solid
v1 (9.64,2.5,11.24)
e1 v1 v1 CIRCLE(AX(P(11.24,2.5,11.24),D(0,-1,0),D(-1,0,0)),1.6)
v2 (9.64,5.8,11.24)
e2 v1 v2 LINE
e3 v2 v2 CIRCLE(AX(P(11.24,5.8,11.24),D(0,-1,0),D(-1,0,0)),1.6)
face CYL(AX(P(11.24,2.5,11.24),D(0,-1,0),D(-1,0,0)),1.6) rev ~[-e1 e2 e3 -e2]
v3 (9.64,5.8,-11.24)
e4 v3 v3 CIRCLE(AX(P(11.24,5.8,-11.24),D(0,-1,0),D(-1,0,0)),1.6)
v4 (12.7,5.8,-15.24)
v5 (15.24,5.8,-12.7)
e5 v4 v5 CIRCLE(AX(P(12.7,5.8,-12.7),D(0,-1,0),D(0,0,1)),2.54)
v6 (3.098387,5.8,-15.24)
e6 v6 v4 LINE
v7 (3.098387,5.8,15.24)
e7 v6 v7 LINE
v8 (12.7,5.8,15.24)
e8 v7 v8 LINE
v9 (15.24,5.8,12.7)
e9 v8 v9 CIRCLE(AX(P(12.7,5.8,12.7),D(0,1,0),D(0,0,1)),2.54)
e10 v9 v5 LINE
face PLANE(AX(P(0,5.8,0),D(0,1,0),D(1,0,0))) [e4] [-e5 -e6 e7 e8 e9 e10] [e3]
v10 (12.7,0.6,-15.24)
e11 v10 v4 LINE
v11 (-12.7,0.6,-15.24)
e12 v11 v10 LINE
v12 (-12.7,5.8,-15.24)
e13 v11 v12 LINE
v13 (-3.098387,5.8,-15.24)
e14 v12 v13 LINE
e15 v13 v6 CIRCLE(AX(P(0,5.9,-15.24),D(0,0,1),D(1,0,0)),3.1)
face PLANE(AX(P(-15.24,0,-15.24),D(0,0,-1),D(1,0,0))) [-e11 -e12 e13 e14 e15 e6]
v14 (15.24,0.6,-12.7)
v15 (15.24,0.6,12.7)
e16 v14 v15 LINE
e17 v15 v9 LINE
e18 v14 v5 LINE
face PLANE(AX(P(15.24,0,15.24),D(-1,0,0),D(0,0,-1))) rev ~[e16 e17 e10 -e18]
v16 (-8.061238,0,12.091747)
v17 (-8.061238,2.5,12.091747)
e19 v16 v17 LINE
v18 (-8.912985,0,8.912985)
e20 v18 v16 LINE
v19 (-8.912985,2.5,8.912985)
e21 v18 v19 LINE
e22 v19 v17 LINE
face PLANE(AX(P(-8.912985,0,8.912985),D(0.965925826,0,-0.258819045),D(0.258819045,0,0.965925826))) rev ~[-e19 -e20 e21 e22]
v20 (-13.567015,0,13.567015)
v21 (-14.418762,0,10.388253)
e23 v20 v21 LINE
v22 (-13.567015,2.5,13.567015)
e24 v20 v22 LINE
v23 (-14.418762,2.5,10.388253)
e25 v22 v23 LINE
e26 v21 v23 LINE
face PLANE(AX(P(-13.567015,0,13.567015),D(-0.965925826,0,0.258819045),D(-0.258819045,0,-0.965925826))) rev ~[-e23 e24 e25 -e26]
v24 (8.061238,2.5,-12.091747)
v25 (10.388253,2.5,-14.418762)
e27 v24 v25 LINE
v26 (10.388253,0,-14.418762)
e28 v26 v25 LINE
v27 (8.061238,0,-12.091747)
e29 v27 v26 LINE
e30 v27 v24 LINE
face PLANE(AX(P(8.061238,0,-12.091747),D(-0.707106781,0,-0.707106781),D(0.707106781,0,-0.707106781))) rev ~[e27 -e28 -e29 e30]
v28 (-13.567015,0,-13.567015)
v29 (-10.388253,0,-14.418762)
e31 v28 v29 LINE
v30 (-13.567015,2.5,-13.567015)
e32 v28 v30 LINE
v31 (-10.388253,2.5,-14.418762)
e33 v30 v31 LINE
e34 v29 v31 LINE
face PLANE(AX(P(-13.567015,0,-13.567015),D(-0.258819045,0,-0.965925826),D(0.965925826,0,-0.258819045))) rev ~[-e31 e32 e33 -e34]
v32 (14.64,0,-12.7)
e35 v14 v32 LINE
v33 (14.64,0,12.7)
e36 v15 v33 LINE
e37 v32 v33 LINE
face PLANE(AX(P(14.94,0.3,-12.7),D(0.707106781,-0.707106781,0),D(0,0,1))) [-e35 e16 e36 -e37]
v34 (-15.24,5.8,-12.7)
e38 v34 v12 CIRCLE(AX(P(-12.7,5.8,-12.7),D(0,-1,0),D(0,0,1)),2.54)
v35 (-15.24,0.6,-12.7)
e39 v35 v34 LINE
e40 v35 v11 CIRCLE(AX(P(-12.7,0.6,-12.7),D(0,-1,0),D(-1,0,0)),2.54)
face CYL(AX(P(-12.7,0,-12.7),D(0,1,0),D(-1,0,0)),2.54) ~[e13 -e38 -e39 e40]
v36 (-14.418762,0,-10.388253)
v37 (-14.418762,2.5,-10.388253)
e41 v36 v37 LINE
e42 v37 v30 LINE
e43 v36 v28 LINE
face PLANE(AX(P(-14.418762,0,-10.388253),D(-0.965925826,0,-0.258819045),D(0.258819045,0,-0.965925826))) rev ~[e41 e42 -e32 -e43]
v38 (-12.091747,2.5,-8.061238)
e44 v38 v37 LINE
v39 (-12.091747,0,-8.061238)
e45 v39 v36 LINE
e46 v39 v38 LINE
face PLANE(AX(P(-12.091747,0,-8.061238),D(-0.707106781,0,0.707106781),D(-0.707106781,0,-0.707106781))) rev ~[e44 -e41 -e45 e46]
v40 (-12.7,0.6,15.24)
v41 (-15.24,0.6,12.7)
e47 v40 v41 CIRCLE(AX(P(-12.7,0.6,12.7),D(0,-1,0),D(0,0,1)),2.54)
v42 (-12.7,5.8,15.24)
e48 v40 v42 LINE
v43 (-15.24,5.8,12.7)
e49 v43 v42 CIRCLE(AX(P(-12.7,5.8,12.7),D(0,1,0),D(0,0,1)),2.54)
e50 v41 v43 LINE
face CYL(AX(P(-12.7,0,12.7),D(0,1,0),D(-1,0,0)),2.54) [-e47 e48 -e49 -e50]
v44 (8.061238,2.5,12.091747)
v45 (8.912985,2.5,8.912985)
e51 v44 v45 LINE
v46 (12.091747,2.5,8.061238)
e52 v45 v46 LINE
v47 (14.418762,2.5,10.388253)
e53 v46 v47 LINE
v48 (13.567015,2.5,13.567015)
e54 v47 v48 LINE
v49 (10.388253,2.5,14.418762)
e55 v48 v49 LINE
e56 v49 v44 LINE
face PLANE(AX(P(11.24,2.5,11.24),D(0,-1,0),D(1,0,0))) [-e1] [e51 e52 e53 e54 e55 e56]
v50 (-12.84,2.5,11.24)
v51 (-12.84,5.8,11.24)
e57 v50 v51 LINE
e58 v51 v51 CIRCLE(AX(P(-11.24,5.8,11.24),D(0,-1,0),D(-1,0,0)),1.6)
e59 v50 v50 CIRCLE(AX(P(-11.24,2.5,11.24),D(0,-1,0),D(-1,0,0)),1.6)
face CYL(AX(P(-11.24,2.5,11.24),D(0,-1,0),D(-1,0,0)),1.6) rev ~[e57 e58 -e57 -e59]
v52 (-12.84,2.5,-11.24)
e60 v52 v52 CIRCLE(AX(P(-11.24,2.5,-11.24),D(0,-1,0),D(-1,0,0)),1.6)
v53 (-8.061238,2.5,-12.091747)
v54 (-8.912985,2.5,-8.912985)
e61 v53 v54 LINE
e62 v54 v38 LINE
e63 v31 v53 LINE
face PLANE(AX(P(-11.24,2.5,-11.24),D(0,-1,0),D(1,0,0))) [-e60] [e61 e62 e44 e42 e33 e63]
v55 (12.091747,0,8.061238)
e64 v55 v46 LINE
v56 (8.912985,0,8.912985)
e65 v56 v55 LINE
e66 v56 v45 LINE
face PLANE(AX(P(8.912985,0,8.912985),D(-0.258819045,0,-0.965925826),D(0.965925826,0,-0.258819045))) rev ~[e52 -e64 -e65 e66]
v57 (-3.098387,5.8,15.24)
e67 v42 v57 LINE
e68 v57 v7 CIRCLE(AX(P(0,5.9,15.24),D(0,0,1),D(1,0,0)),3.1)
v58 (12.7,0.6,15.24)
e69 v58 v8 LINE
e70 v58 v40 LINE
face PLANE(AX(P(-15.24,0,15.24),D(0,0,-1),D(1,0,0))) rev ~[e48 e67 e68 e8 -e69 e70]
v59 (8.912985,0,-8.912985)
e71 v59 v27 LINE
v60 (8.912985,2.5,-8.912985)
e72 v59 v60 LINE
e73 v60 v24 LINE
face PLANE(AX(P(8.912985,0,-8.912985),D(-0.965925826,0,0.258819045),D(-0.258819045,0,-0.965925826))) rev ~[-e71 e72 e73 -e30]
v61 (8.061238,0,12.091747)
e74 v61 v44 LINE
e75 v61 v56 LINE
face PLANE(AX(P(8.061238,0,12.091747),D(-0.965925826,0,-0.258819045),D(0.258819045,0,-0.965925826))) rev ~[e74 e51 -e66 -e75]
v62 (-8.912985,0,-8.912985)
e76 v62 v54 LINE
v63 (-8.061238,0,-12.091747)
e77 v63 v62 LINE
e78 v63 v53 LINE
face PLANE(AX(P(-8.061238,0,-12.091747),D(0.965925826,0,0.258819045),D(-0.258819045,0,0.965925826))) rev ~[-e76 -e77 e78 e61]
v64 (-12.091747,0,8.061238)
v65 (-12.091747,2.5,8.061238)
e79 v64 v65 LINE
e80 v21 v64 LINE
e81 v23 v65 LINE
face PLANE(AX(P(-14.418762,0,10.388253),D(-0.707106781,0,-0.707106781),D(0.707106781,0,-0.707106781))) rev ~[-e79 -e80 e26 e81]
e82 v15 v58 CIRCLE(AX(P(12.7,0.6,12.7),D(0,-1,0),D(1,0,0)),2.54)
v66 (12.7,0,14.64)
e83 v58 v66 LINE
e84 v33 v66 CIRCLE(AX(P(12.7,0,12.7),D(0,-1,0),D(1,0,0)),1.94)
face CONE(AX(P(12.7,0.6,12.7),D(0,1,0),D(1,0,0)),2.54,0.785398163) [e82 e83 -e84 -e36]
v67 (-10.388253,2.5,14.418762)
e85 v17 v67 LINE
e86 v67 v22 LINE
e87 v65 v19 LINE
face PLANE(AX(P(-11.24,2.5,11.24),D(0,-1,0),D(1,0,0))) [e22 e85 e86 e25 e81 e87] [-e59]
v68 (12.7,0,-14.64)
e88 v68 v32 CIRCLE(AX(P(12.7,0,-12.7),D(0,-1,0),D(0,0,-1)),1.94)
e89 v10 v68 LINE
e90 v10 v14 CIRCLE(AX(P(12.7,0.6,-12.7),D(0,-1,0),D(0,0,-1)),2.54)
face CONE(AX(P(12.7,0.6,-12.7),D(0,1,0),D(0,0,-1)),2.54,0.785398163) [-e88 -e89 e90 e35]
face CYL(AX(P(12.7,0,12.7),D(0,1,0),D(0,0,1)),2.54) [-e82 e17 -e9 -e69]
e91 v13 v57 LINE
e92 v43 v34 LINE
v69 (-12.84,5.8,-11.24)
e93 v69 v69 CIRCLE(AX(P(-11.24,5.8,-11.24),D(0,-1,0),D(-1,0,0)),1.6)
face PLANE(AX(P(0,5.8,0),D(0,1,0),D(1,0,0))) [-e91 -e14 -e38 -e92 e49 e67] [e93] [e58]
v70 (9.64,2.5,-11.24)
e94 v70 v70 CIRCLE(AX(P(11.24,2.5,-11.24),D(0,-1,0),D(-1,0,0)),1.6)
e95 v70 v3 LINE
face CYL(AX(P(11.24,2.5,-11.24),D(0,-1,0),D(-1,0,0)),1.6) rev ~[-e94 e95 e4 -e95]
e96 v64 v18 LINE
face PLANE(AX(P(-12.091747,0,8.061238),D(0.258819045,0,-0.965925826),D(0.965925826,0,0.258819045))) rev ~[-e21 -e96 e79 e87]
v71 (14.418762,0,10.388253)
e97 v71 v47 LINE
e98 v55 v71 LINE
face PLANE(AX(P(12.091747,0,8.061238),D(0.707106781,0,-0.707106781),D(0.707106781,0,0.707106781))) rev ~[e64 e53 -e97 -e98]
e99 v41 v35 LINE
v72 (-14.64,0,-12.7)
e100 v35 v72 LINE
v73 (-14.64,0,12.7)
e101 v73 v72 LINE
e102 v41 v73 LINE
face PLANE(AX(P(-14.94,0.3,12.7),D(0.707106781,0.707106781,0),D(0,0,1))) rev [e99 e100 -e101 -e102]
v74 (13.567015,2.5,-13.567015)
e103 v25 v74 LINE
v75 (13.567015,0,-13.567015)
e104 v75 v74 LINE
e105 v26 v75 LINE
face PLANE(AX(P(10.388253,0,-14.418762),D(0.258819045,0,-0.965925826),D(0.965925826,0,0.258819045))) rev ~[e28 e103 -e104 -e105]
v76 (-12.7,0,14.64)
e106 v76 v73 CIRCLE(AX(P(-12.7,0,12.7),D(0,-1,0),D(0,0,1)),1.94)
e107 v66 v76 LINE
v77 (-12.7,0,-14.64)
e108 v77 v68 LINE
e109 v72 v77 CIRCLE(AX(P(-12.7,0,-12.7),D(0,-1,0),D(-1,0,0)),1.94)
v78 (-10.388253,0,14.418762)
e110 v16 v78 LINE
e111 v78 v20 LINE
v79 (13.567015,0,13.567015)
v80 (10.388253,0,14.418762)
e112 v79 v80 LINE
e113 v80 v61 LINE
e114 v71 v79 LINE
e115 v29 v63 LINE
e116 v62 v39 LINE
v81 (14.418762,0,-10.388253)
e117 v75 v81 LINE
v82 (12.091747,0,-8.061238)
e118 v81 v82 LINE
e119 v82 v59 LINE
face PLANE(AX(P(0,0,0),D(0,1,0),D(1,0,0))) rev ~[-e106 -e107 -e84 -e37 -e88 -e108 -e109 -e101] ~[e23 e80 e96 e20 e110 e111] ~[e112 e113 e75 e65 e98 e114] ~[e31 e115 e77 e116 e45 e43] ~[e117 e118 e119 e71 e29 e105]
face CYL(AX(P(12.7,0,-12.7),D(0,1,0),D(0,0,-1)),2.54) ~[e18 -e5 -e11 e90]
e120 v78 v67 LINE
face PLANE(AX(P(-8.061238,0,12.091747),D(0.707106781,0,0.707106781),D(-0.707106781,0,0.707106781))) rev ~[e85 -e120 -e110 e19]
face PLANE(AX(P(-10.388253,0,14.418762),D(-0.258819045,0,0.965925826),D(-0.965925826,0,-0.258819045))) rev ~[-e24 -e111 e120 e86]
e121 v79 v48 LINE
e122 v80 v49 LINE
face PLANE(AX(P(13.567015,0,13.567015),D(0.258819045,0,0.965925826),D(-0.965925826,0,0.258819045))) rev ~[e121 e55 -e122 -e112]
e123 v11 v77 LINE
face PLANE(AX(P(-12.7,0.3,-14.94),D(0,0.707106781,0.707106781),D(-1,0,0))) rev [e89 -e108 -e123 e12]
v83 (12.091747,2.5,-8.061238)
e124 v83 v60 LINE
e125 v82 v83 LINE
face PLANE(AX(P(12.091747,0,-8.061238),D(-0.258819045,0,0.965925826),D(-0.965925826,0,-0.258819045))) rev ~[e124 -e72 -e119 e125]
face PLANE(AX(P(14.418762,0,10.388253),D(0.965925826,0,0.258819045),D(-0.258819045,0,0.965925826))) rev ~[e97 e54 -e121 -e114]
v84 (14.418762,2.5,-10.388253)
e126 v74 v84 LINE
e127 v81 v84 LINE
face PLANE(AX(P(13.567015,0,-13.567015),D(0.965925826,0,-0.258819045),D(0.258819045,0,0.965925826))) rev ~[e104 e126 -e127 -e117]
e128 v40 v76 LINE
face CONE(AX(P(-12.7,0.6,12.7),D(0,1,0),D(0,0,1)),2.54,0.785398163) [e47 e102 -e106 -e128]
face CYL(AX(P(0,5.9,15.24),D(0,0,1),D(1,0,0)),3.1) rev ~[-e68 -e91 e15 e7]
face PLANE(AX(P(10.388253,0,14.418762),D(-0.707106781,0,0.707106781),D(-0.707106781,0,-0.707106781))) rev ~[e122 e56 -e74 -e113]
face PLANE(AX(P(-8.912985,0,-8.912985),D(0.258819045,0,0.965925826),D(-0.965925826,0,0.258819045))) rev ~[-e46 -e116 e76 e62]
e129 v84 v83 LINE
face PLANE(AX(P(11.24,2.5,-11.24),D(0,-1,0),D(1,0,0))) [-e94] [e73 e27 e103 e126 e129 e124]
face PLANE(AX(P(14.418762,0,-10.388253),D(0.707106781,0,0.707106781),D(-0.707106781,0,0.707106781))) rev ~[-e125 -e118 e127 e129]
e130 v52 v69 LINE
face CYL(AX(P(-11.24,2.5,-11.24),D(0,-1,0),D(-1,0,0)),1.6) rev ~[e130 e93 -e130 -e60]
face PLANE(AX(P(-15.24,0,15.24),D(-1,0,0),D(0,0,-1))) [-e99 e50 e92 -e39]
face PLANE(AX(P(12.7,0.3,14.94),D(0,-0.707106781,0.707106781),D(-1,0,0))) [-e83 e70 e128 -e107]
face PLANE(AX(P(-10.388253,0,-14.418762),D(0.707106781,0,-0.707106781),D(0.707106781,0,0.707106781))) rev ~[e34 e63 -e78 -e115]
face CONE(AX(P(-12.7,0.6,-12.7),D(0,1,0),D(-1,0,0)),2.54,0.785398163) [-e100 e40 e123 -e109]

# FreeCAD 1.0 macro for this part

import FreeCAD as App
import Part
import Sketcher
from FreeCAD import Vector
Q = App.Units.Quantity


def edges_at(feature, points):
    """Names of the edges that pass closest to the given points."""
    edges = feature.Shape.Edges
    near = lambda p: min(range(len(edges)), key=lambda i: edges[i].distToShape(Part.Vertex(*p))[0])
    return sorted({f"Edge{near(p) + 1}" for p in points})


def add_polygon(sketch, points):
    """Adds a closed chain of lines whose ends are joined by coincident constraints."""
    first, n = sketch.GeometryCount, len(points)
    for a, b in zip(points, points[1:] + points[:1]):
        sketch.addGeometry(Part.LineSegment(App.Vector(*a, 0), App.Vector(*b, 0)), False)
    for i in range(n):
        sketch.addConstraint(Sketcher.Constraint("Coincident", first + i, 2, first + (i + 1) % n, 1))

doc = App.newDocument("Part")
body = doc.addObject("PartDesign::Body", "Body")

sketch1 = body.newObject("Sketcher::SketchObject", "Sketch")
sketch1.AttachmentSupport = (doc.getObject("XZ_Plane"), [""])
sketch1.MapMode = "FlatFace"
add_polygon(sketch1, [(-15.24, -15.24), (-15.24, 15.24), (15.24, 15.24), (15.24, -15.24)])
sketch1.addConstraint(Sketcher.Constraint("Vertical", 0))
sketch1.addConstraint(Sketcher.Constraint("Horizontal", 1))
sketch1.addConstraint(Sketcher.Constraint("Vertical", 2))
sketch1.addConstraint(Sketcher.Constraint("Horizontal", 3))
sketch1.addConstraint(Sketcher.Constraint("Symmetric", 0, 2, 2, 2, -1, 1))
sketch1.addConstraint(Sketcher.Constraint("Equal", 3, 0))
sketch1.addConstraint(Sketcher.Constraint("DistanceX", 1, 1, 1, 2, Q("30.48 mm")))
pad1 = body.newObject("PartDesign::Pad", "Pad")
pad1.Profile = sketch1
pad1.Length = 5.8
pad1.Reversed = True

sketch2 = body.newObject("Sketcher::SketchObject", "Sketch001")
sketch2.AttachmentSupport = (doc.getObject("XY_Plane"), [""])
sketch2.MapMode = "FlatFace"
sketch2.AttachmentOffset = App.Placement(Vector(0, 0, 15.24), App.Rotation())
sketch2.addGeometry(Part.Circle(Vector(0, 5.9, 0), Vector(0, 0, 1), 3.1), False)
sketch2.addConstraint(Sketcher.Constraint("PointOnObject", 0, 3, -2))
sketch2.addConstraint(Sketcher.Constraint("Diameter", 0, Q("6.2 mm")))
sketch2.addConstraint(Sketcher.Constraint("DistanceY", -1, 1, 0, 3, Q("5.9 mm")))
pocket1 = body.newObject("PartDesign::Pocket", "Pocket")
pocket1.Profile = sketch2
pocket1.Length = 30.48

sketch3 = body.newObject("Sketcher::SketchObject", "Sketch002")
sketch3.AttachmentSupport = (doc.getObject("XZ_Plane"), [""])
sketch3.MapMode = "FlatFace"
add_polygon(sketch3, [(13.567015, 13.567015), (10.388253, 14.418762), (8.061238, 12.091747), (8.912985, 8.912985), (12.091747, 8.061238), (14.418762, 10.388253)])
add_polygon(sketch3, [(-13.567015, 13.567015), (-14.418762, 10.388253), (-12.091747, 8.061238), (-8.912985, 8.912985), (-8.061238, 12.091747), (-10.388253, 14.418762)])
add_polygon(sketch3, [(13.567015, -13.567015), (14.418762, -10.388253), (12.091747, -8.061238), (8.912985, -8.912985), (8.061238, -12.091747), (10.388253, -14.418762)])
add_polygon(sketch3, [(-13.567015, -13.567015), (-10.388253, -14.418762), (-8.061238, -12.091747), (-8.912985, -8.912985), (-12.091747, -8.061238), (-14.418762, -10.388253)])
sketch3.addConstraint(Sketcher.Constraint("Symmetric", 6, 2, 12, 2, -1, 1))
sketch3.addConstraint(Sketcher.Constraint("Symmetric", 7, 2, 13, 2, -1, 1))
sketch3.addConstraint(Sketcher.Constraint("Symmetric", 8, 2, 14, 2, -1, 1))
sketch3.addConstraint(Sketcher.Constraint("Symmetric", 9, 2, 15, 2, -1, 1))
sketch3.addConstraint(Sketcher.Constraint("Symmetric", 10, 2, 16, 2, -1, 1))
sketch3.addConstraint(Sketcher.Constraint("Symmetric", 11, 2, 17, 2, -1, 1))
sketch3.addConstraint(Sketcher.Constraint("Symmetric", 0, 2, 18, 2, -1, 1))
sketch3.addConstraint(Sketcher.Constraint("Symmetric", 1, 2, 19, 2, -1, 1))
sketch3.addConstraint(Sketcher.Constraint("Symmetric", 2, 2, 20, 2, -1, 1))
sketch3.addConstraint(Sketcher.Constraint("Symmetric", 3, 2, 21, 2, -1, 1))
sketch3.addConstraint(Sketcher.Constraint("Symmetric", 4, 2, 22, 2, -1, 1))
sketch3.addConstraint(Sketcher.Constraint("Symmetric", 5, 2, 23, 2, -1, 1))
sketch3.addConstraint(Sketcher.Constraint("Symmetric", 4, 2, 6, 2, -2))
sketch3.addConstraint(Sketcher.Constraint("Symmetric", 3, 2, 7, 2, -2))
sketch3.addConstraint(Sketcher.Constraint("Symmetric", 2, 2, 8, 2, -2))
sketch3.addConstraint(Sketcher.Constraint("Symmetric", 1, 2, 9, 2, -2))
sketch3.addConstraint(Sketcher.Constraint("Symmetric", 0, 2, 10, 2, -2))
sketch3.addConstraint(Sketcher.Constraint("Symmetric", 5, 2, 11, 2, -2))
sketch3.addConstraint(Sketcher.Constraint("Parallel", 0, 3))
sketch3.addConstraint(Sketcher.Constraint("Parallel", 1, 4))
sketch3.addConstraint(Sketcher.Constraint("Parallel", 2, 5))
sketch3.addConstraint(Sketcher.Constraint("Perpendicular", 3, 6))
sketch3.addConstraint(Sketcher.Constraint("Perpendicular", 4, 7))
sketch3.addConstraint(Sketcher.Constraint("Equal", 0, 1))
sketch3.addConstraint(Sketcher.Constraint("Equal", 1, 2))
sketch3.addConstraint(Sketcher.Constraint("Equal", 2, 3))
sketch3.addConstraint(Sketcher.Constraint("Angle", 0, Q("165 deg")))
sketch3.addConstraint(Sketcher.Constraint("DistanceX", 6, 2, 1, 2, Q("22.48 mm")))
sketch3.addConstraint(Sketcher.Constraint("DistanceY", 12, 2, 1, 2, Q("22.48 mm")))
sketch3.addConstraint(Sketcher.Constraint("DistanceY", -1, 1, 0, 2, Q("14.418762 mm")))
pocket2 = body.newObject("PartDesign::Pocket", "Pocket001")
pocket2.Profile = sketch3
pocket2.Length = 2.5

sketch4 = body.newObject("Sketcher::SketchObject", "Sketch003")
sketch4.AttachmentSupport = (doc.getObject("XZ_Plane"), [""])
sketch4.MapMode = "FlatFace"
sketch4.AttachmentOffset = App.Placement(Vector(0, 0, -2.5), App.Rotation())
sketch4.addGeometry(Part.Circle(Vector(-11.24, 11.24, 0), Vector(0, 0, 1), 1.6), False)
sketch4.addGeometry(Part.Circle(Vector(11.24, 11.24, 0), Vector(0, 0, 1), 1.6), False)
sketch4.addGeometry(Part.Circle(Vector(11.24, -11.24, 0), Vector(0, 0, 1), 1.6), False)
sketch4.addGeometry(Part.Circle(Vector(-11.24, -11.24, 0), Vector(0, 0, 1), 1.6), False)
sketch4.addConstraint(Sketcher.Constraint("Equal", 0, 1))
sketch4.addConstraint(Sketcher.Constraint("Equal", 1, 2))
sketch4.addConstraint(Sketcher.Constraint("Equal", 2, 3))
sketch4.addConstraint(Sketcher.Constraint("Symmetric", 0, 3, 2, 3, -1, 1))
sketch4.addConstraint(Sketcher.Constraint("Symmetric", 1, 3, 3, 3, -1, 1))
sketch4.addConstraint(Sketcher.Constraint("Symmetric", 0, 3, 1, 3, -2))
sketch4.addConstraint(Sketcher.Constraint("Diameter", 0, Q("3.2 mm")))
sketch4.addConstraint(Sketcher.Constraint("DistanceX", 0, 3, -1, 1, Q("11.24 mm")))
sketch4.addConstraint(Sketcher.Constraint("DistanceY", -1, 1, 0, 3, Q("11.24 mm")))
pocket3 = body.newObject("PartDesign::Pocket", "Pocket002")
pocket3.Profile = sketch4
pocket3.Length = 3.3
doc.recompute()

fillet = body.newObject("PartDesign::Fillet", "Fillet")
fillet.Base = (pocket3, edges_at(pocket3, [
    (15.24, 2.9, 15.24),
    (-15.24, 2.9, 15.24),
    (-15.24, 2.9, -15.24),
    (15.24, 2.9, -15.24),
]))
fillet.Radius = 2.54
doc.recompute()

chamfer = body.newObject("PartDesign::Chamfer", "Chamfer")
chamfer.Base = (fillet, edges_at(fillet, [
    (-15.24, 0, 0),
    (15.24, 0, 0),
    (0, 0, 15.24),
    (0, 0, -15.24),
    (14.496, 0, -14.496),
    (14.496, 0, 14.496),
    (-14.496, 0, 14.496),
    (-14.496, 0, -14.496),
]))
chamfer.Size = 0.6

doc.recompute()
